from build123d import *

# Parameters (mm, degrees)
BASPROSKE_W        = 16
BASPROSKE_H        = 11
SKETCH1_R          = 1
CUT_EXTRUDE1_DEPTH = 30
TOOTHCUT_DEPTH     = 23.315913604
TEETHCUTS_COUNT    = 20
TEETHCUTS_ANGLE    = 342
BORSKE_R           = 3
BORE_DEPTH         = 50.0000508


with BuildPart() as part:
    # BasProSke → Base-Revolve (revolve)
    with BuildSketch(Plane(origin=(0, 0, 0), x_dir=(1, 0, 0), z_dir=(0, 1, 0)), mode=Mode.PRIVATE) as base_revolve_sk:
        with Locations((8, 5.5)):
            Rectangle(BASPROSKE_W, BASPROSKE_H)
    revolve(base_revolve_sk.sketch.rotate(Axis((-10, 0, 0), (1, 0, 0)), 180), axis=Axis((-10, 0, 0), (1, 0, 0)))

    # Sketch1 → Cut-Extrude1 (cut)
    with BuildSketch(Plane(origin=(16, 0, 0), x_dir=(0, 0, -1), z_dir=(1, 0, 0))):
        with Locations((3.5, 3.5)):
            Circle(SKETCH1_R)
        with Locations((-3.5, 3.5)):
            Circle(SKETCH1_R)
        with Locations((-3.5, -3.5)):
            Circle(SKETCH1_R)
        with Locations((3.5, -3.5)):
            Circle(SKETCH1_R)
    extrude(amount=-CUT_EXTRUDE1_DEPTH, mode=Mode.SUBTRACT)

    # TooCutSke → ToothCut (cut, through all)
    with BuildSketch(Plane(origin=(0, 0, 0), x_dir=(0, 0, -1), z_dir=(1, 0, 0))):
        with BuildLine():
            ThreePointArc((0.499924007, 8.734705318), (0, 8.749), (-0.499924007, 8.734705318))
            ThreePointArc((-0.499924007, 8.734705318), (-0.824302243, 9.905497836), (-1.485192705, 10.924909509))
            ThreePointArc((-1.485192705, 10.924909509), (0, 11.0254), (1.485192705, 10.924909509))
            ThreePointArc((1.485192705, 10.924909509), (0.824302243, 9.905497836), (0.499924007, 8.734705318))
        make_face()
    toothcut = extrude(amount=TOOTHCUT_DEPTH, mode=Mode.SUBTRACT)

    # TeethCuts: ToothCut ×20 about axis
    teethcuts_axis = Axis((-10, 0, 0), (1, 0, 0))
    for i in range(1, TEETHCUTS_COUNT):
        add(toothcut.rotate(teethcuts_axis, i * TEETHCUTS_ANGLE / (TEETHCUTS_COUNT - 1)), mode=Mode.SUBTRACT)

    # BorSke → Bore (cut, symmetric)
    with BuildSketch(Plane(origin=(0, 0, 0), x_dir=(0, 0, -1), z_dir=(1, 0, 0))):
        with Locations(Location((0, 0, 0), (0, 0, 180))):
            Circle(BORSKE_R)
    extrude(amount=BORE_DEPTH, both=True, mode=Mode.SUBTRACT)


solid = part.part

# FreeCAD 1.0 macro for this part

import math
import FreeCAD as App
import Part
import Sketcher
from FreeCAD import Vector

doc = App.newDocument("Part")
body = doc.addObject("PartDesign::Body", "Body")

# Sketch on XZ plane
sketch1 = doc.addObject("Sketcher::SketchObject", "Sketch")
body.addObject(sketch1)
sketch1.AttachmentSupport = (doc.XZ_Plane, [""])
sketch1.MapMode = "FlatFace"
sketch1.addGeometry(Part.LineSegment(Vector(0, -11, 0), Vector(0, 0, 0)), False)
sketch1.addGeometry(Part.LineSegment(Vector(0, 0, 0), Vector(16, 0, 0)), False)
sketch1.addGeometry(Part.LineSegment(Vector(16, 0, 0), Vector(16, -11, 0)), False)
sketch1.addGeometry(Part.LineSegment(Vector(16, -11, 0), Vector(0, -11, 0)), False)
sketch1.addConstraint(Sketcher.Constraint("Coincident", 0, 2, 1, 1))
sketch1.addConstraint(Sketcher.Constraint("Coincident", 1, 2, 2, 1))
sketch1.addConstraint(Sketcher.Constraint("Coincident", 2, 2, 3, 1))
sketch1.addConstraint(Sketcher.Constraint("Coincident", 3, 2, 0, 1))
sketch1.addConstraint(Sketcher.Constraint("Vertical", 0))
sketch1.addConstraint(Sketcher.Constraint("Horizontal", 1))
sketch1.addConstraint(Sketcher.Constraint("Vertical", 2))
sketch1.addConstraint(Sketcher.Constraint("Horizontal", 3))
sketch1.addConstraint(Sketcher.Constraint("Coincident", 0, 2, -1, 1))
sketch1.addConstraint(Sketcher.Constraint("DistanceX", 1, 1, 1, 2, 16.0))
sketch1.addConstraint(Sketcher.Constraint("DistanceY", 0, 1, 0, 2, 11.0))
revolution = doc.addObject("PartDesign::Revolution", "Revolution")
body.addObject(revolution)
revolution.Profile = sketch1
revolution.ReferenceAxis = (sketch1, ["H_Axis"])
revolution.Angle = 360

# Sketch on YZ plane
sketch2 = doc.addObject("Sketcher::SketchObject", "Sketch001")
body.addObject(sketch2)
sketch2.AttachmentSupport = (doc.YZ_Plane, [""])
sketch2.MapMode = "FlatFace"
sketch2.AttachmentOffset = App.Placement(Vector(0, 0, 16), App.Rotation())
sketch2.addGeometry(Part.Circle(Vector(3.5, -3.5, 0), Vector(0, 0, 1), 1), False)
sketch2.addGeometry(Part.Circle(Vector(3.5, 3.5, 0), Vector(0, 0, 1), 1), False)
sketch2.addGeometry(Part.Circle(Vector(-3.5, 3.5, 0), Vector(0, 0, 1), 1), False)
sketch2.addGeometry(Part.Circle(Vector(-3.5, -3.5, 0), Vector(0, 0, 1), 1), False)
sketch2.addConstraint(Sketcher.Constraint("Equal", 0, 1))
sketch2.addConstraint(Sketcher.Constraint("Equal", 1, 2))
sketch2.addConstraint(Sketcher.Constraint("Equal", 2, 3))
sketch2.addConstraint(Sketcher.Constraint("Symmetric", 0, 3, 2, 3, -1, 1))
sketch2.addConstraint(Sketcher.Constraint("Symmetric", 1, 3, 3, 3, -1, 1))
sketch2.addConstraint(Sketcher.Constraint("Symmetric", 1, 3, 2, 3, -2))
sketch2.addConstraint(Sketcher.Constraint("Diameter", 0, 2.0))
sketch2.addConstraint(Sketcher.Constraint("DistanceY", 0, 3, 1, 3, 7.0))
sketch2.addConstraint(Sketcher.Constraint("DistanceX", 2, 3, 1, 3, 7.0))
pocket1 = doc.addObject("PartDesign::Pocket", "Pocket")
body.addObject(pocket1)
pocket1.Profile = sketch2
pocket1.Length = 30

# Sketch on YZ plane
sketch3 = doc.addObject("Sketcher::SketchObject", "Sketch002")
body.addObject(sketch3)
sketch3.AttachmentSupport = (doc.YZ_Plane, [""])
sketch3.MapMode = "FlatFace"
sketch3.addGeometry(Part.ArcOfCircle(Part.Circle(Vector(0, 0, 0), Vector(0, 0, 1), 8.7), math.radians(-3.28), math.radians(3.28)), False)
sketch3.addGeometry(Part.ArcOfCircle(Part.Circle(Vector(8.3, -4.5, 0), Vector(0, 0, 1), 4), math.radians(48), math.radians(83)), False)
sketch3.addGeometry(Part.ArcOfCircle(Part.Circle(Vector(0, 0, 0), Vector(0, 0, 1), 11), math.radians(-7.74), math.radians(7.74)), False)
sketch3.addGeometry(Part.ArcOfCircle(Part.Circle(Vector(8.3, 4.5, 0), Vector(0, 0, 1), 4), math.radians(-83), math.radians(-48)), False)
sketch3.addConstraint(Sketcher.Constraint("Coincident", 0, 1, 1, 2))
sketch3.addConstraint(Sketcher.Constraint("Coincident", 1, 1, 2, 1))
sketch3.addConstraint(Sketcher.Constraint("Coincident", 2, 2, 3, 2))
sketch3.addConstraint(Sketcher.Constraint("Coincident", 3, 1, 0, 2))
sketch3.addConstraint(Sketcher.Constraint("Coincident", 0, 3, -1, 1))
sketch3.addConstraint(Sketcher.Constraint("Coincident", 2, 3, -1, 1))
sketch3.addConstraint(Sketcher.Constraint("Equal", 1, 3))
sketch3.addConstraint(Sketcher.Constraint("Symmetric", 1, 3, 3, 3, -1))
sketch3.addConstraint(Sketcher.Constraint("Radius", 1, 4.0))
sketch3.addConstraint(Sketcher.Constraint("Radius", 0, 8.749))
sketch3.addConstraint(Sketcher.Constraint("Radius", 2, 11.0254))
sketch3.addConstraint(Sketcher.Constraint("DistanceY", 1, 3, -1, 1, 4.47219))
sketch3.addConstraint(Sketcher.Constraint("DistanceX", -1, 1, 1, 1, 10.92491))
pocket2 = doc.addObject("PartDesign::Pocket", "Pocket001")
body.addObject(pocket2)
pocket2.Profile = sketch3
pocket2.Type = "ThroughAll"
pocket2.Reversed = True
doc.recompute()

polarpattern = doc.addObject("PartDesign::PolarPattern", "PolarPattern")
body.addObject(polarpattern)
polarpattern.Originals = [pocket2]
polarpattern.Axis = (doc.X_Axis, [""])
polarpattern.Angle = 360
polarpattern.Occurrences = 20
body.Tip = polarpattern

# Sketch on YZ plane
sketch4 = doc.addObject("Sketcher::SketchObject", "Sketch003")
body.addObject(sketch4)
sketch4.AttachmentSupport = (doc.YZ_Plane, [""])
sketch4.MapMode = "FlatFace"
sketch4.addGeometry(Part.Circle(Vector(0, 0, 0), Vector(0, 0, 1), 3), False)
sketch4.addConstraint(Sketcher.Constraint("Coincident", 0, 3, -1, 1))
sketch4.addConstraint(Sketcher.Constraint("Diameter", 0, 6.0))
pocket3 = doc.addObject("PartDesign::Pocket", "Pocket002")
body.addObject(pocket3)
pocket3.Profile = sketch4
pocket3.Length = 100.000102
pocket3.Midplane = True

doc.recompute()
